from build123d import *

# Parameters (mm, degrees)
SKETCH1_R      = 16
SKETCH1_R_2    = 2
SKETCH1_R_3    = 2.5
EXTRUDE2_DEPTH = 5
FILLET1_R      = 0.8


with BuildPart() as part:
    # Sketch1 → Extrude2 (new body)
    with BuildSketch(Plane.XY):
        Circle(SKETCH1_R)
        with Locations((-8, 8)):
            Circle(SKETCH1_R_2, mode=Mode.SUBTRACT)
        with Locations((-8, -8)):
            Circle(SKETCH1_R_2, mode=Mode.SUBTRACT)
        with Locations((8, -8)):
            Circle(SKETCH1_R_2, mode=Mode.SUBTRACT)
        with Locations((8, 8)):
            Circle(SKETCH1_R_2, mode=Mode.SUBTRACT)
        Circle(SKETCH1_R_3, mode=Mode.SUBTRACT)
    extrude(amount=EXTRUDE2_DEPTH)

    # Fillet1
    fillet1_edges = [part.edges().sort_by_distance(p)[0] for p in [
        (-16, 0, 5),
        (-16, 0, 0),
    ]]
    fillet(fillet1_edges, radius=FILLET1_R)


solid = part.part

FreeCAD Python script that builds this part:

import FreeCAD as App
import Part
import Sketcher


def edges_at(feature, points):
    """Names of the edges that pass closest to the given points."""
    edges = feature.Shape.Edges
    near = lambda p: min(range(len(edges)), key=lambda i: edges[i].distToShape(Part.Vertex(*p))[0])
    return sorted({f"Edge{near(p) + 1}" for p in points})

doc = App.newDocument("Part")
body = doc.addObject("PartDesign::Body", "Body")

# Sketch on XY plane
sketch1 = body.newObject("Sketcher::SketchObject", "Sketch")
sketch1.AttachmentSupport = (doc.getObject("XY_Plane"), [""])
sketch1.MapMode = "FlatFace"
sketch1.addGeometry([
    Part.Circle(App.Vector(0, 0, 0), App.Vector(0, 0, 1), 16),  # 0
    Part.Circle(App.Vector(-8, -8, 0), App.Vector(0, 0, 1), 2),  # 1
    Part.Circle(App.Vector(8, -8, 0), App.Vector(0, 0, 1), 2),  # 2
    Part.Circle(App.Vector(-8, 8, 0), App.Vector(0, 0, 1), 2),  # 3
    Part.Circle(App.Vector(0, 0, 0), App.Vector(0, 0, 1), 2.5),  # 4
    Part.Circle(App.Vector(8, 8, 0), App.Vector(0, 0, 1), 2),  # 5
], False)
sketch1.addConstraint([
    Sketcher.Constraint("Coincident", 0, 3, -1, 1),
    Sketcher.Constraint("Coincident", 4, 3, -1, 1),
    Sketcher.Constraint("Equal", 1, 2),
    Sketcher.Constraint("Equal", 2, 3),
    Sketcher.Constraint("Equal", 3, 5),
    Sketcher.Constraint("Symmetric", 2, 3, 3, 3, -1, 1),
    Sketcher.Constraint("Symmetric", 1, 3, 5, 3, -1, 1),
    Sketcher.Constraint("Symmetric", 1, 3, 2, 3, -2),
    Sketcher.Constraint("Diameter", 0, 32.0),
    Sketcher.Constraint("Diameter", 1, 4.0),
    Sketcher.Constraint("Diameter", 4, 5.0),
    Sketcher.Constraint("DistanceX", 1, 3, -1, 1, 8.0),
    Sketcher.Constraint("DistanceY", 1, 3, -1, 1, 8.0),
])
pad1 = body.newObject("PartDesign::Pad", "Pad")
pad1.Profile = sketch1
pad1.Length = 5
doc.recompute()

fillet = body.newObject("PartDesign::Fillet", "Fillet")
fillet.Base = (pad1, edges_at(pad1, [(-16, 0, 5), (-16, 0, 0)]))
fillet.Radius = 0.8

doc.recompute()
